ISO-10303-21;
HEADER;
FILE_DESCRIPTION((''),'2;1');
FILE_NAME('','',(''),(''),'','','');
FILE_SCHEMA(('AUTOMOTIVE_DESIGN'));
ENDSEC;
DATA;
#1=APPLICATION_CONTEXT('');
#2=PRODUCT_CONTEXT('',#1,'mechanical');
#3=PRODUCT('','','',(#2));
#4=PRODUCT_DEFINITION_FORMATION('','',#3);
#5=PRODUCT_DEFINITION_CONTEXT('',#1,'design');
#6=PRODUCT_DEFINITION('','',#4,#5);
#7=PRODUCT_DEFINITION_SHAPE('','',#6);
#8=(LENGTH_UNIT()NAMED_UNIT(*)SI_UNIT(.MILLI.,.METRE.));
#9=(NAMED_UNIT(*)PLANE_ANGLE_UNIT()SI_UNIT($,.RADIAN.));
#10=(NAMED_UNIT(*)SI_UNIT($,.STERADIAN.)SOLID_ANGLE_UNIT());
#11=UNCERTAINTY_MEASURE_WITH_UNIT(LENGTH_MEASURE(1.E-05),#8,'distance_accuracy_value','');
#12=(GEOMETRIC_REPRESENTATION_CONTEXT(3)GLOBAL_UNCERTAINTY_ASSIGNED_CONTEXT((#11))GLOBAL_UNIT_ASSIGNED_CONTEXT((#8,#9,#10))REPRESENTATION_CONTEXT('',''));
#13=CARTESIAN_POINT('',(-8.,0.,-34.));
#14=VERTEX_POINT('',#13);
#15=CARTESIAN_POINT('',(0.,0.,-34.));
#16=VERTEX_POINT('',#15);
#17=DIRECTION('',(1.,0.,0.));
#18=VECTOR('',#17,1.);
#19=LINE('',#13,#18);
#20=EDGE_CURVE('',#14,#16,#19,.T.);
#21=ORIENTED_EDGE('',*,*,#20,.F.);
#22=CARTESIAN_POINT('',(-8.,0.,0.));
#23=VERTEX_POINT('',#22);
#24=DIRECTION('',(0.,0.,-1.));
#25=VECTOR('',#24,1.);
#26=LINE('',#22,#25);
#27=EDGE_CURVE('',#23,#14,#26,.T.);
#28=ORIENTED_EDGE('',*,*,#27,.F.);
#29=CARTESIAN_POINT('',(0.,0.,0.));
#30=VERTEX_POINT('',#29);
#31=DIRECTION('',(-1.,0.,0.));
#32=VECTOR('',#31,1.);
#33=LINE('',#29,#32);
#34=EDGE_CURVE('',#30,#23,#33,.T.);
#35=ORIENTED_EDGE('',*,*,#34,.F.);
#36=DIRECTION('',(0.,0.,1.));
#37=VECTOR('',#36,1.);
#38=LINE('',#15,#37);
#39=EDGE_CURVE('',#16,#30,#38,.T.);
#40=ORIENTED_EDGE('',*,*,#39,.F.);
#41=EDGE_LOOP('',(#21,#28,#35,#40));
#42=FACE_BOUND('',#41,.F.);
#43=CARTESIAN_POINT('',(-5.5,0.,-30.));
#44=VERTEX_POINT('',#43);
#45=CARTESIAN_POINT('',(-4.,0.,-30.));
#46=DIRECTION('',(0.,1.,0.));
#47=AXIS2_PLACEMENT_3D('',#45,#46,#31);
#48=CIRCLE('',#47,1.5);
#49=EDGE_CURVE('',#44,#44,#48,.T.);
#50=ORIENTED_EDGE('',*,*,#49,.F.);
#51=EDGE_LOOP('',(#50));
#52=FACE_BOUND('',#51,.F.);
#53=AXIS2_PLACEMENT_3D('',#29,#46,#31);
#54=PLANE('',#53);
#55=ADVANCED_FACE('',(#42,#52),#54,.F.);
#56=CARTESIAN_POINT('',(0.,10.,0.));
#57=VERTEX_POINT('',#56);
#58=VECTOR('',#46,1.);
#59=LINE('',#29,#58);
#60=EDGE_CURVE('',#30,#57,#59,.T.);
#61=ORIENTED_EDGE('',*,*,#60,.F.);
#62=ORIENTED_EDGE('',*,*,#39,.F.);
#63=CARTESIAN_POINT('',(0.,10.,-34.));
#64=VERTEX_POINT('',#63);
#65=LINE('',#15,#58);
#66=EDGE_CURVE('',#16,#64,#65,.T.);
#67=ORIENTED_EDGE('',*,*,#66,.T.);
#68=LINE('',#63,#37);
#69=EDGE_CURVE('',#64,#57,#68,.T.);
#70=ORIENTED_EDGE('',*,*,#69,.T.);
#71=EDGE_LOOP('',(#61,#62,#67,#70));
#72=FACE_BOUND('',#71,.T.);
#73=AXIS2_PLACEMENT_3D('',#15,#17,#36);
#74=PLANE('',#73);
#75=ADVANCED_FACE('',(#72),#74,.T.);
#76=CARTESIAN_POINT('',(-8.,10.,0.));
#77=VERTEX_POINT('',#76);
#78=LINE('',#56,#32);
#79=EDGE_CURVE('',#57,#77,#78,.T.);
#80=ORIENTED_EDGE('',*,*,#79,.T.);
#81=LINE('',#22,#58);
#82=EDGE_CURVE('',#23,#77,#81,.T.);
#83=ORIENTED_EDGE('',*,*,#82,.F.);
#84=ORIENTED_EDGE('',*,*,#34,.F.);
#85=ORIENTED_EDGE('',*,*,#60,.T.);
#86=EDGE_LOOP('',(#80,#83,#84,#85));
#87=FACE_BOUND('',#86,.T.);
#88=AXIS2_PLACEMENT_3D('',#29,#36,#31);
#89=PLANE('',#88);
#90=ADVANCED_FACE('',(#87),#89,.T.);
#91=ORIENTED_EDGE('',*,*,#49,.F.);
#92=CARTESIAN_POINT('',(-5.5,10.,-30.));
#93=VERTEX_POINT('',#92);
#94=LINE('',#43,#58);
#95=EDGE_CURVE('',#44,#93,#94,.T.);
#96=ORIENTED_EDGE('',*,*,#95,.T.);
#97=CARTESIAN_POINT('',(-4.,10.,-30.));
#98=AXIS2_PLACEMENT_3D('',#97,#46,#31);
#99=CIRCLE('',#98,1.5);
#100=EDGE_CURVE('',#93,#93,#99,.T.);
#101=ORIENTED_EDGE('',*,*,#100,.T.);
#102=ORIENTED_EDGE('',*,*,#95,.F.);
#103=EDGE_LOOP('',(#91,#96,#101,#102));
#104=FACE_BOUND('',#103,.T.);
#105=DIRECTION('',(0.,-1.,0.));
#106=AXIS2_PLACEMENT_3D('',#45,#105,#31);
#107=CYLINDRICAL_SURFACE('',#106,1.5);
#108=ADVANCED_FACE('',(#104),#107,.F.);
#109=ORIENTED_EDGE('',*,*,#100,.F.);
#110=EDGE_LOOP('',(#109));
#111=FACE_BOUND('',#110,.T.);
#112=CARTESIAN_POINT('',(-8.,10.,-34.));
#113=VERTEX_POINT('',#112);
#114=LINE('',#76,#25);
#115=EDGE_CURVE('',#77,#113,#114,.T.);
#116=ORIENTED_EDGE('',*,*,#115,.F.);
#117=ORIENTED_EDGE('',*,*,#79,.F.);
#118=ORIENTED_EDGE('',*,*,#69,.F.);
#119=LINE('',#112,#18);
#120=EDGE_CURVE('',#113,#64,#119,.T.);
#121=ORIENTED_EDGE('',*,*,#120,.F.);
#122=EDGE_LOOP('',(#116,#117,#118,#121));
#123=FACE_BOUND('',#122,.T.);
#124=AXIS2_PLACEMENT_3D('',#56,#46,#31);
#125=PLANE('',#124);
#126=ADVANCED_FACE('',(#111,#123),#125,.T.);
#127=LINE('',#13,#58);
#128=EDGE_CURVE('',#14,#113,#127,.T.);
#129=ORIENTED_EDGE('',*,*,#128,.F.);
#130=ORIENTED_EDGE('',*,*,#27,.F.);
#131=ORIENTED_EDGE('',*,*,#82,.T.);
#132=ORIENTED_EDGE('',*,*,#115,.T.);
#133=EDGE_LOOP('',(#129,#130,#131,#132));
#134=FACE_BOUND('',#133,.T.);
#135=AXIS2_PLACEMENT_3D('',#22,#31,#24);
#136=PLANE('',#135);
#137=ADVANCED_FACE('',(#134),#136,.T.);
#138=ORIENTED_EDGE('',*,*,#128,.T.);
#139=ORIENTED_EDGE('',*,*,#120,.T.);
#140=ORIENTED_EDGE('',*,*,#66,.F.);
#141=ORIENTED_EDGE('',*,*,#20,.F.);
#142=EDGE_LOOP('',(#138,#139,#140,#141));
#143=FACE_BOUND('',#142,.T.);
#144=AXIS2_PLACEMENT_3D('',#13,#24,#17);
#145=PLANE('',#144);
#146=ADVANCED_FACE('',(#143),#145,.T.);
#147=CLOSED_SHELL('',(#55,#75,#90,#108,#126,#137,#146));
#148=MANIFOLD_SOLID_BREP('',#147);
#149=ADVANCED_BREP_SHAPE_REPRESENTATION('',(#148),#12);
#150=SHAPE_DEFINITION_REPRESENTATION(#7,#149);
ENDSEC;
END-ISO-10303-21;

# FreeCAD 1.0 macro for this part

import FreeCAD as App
import Part
import Sketcher

V = App.Vector

doc = App.newDocument("Part")
params = doc.addObject("Spreadsheet::Sheet", "Params")
for row, (alias, value) in enumerate([
    ("sketch1_diameter", "3 mm"),
    ("pad1_length", "10 mm"),
], start=1):
    params.set(f"A{row}", alias)
    params.set(f"B{row}", "=" + value)
    params.setAlias(f"B{row}", alias)

body = doc.addObject("PartDesign::Body", "Body")

# Sketch on XZ plane
sketch1 = doc.addObject("Sketcher::SketchObject", "Sketch")
body.addObject(sketch1)
sketch1.AttachmentSupport = (doc.XZ_Plane, [""])
sketch1.MapMode = "FlatFace"
sketch1.addGeometry(Part.LineSegment(V(-8, 0, 0), V(0, 0, 0)), False)
sketch1.addGeometry(Part.LineSegment(V(0, 0, 0), V(0, -34, 0)), False)
sketch1.addGeometry(Part.LineSegment(V(0, -34, 0), V(-8, -34, 0)), False)
sketch1.addGeometry(Part.LineSegment(V(-8, -34, 0), V(-8, 0, 0)), False)
sketch1.addGeometry(Part.Circle(V(-4, -30, 0), V(0, 0, 1), 1.5), False)
sketch1.addConstraint(Sketcher.Constraint("Coincident", 0, 2, 1, 1))
sketch1.addConstraint(Sketcher.Constraint("Coincident", 1, 2, 2, 1))
sketch1.addConstraint(Sketcher.Constraint("Coincident", 2, 2, 3, 1))
sketch1.addConstraint(Sketcher.Constraint("Coincident", 3, 2, 0, 1))
sketch1.addConstraint(Sketcher.Constraint("Horizontal", 0))
sketch1.addConstraint(Sketcher.Constraint("Vertical", 1))
sketch1.addConstraint(Sketcher.Constraint("Horizontal", 2))
sketch1.addConstraint(Sketcher.Constraint("Vertical", 3))
sketch1.addConstraint(Sketcher.Constraint("Coincident", 0, 2, -1, 1))
sketch1.addConstraint(Sketcher.Constraint("Diameter", 4, 3.0))
sketch1.addConstraint(Sketcher.Constraint("DistanceX", 4, 3, -1, 1, 4.0))
sketch1.addConstraint(Sketcher.Constraint("DistanceY", 4, 3, -1, 1, 30.0))
sketch1.addConstraint(Sketcher.Constraint("DistanceY", 1, 2, 4, 3, 4.0))
sketch1.addConstraint(Sketcher.Constraint("DistanceX", 2, 2, 4, 3, 4.0))
sketch1.setExpression("Constraints[9]", "Params.sketch1_diameter")
pad1 = doc.addObject("PartDesign::Pad", "Pad")
body.addObject(pad1)
pad1.Profile = sketch1
pad1.setExpression("Length", "Params.pad1_length")
pad1.Reversed = True

doc.recompute()
